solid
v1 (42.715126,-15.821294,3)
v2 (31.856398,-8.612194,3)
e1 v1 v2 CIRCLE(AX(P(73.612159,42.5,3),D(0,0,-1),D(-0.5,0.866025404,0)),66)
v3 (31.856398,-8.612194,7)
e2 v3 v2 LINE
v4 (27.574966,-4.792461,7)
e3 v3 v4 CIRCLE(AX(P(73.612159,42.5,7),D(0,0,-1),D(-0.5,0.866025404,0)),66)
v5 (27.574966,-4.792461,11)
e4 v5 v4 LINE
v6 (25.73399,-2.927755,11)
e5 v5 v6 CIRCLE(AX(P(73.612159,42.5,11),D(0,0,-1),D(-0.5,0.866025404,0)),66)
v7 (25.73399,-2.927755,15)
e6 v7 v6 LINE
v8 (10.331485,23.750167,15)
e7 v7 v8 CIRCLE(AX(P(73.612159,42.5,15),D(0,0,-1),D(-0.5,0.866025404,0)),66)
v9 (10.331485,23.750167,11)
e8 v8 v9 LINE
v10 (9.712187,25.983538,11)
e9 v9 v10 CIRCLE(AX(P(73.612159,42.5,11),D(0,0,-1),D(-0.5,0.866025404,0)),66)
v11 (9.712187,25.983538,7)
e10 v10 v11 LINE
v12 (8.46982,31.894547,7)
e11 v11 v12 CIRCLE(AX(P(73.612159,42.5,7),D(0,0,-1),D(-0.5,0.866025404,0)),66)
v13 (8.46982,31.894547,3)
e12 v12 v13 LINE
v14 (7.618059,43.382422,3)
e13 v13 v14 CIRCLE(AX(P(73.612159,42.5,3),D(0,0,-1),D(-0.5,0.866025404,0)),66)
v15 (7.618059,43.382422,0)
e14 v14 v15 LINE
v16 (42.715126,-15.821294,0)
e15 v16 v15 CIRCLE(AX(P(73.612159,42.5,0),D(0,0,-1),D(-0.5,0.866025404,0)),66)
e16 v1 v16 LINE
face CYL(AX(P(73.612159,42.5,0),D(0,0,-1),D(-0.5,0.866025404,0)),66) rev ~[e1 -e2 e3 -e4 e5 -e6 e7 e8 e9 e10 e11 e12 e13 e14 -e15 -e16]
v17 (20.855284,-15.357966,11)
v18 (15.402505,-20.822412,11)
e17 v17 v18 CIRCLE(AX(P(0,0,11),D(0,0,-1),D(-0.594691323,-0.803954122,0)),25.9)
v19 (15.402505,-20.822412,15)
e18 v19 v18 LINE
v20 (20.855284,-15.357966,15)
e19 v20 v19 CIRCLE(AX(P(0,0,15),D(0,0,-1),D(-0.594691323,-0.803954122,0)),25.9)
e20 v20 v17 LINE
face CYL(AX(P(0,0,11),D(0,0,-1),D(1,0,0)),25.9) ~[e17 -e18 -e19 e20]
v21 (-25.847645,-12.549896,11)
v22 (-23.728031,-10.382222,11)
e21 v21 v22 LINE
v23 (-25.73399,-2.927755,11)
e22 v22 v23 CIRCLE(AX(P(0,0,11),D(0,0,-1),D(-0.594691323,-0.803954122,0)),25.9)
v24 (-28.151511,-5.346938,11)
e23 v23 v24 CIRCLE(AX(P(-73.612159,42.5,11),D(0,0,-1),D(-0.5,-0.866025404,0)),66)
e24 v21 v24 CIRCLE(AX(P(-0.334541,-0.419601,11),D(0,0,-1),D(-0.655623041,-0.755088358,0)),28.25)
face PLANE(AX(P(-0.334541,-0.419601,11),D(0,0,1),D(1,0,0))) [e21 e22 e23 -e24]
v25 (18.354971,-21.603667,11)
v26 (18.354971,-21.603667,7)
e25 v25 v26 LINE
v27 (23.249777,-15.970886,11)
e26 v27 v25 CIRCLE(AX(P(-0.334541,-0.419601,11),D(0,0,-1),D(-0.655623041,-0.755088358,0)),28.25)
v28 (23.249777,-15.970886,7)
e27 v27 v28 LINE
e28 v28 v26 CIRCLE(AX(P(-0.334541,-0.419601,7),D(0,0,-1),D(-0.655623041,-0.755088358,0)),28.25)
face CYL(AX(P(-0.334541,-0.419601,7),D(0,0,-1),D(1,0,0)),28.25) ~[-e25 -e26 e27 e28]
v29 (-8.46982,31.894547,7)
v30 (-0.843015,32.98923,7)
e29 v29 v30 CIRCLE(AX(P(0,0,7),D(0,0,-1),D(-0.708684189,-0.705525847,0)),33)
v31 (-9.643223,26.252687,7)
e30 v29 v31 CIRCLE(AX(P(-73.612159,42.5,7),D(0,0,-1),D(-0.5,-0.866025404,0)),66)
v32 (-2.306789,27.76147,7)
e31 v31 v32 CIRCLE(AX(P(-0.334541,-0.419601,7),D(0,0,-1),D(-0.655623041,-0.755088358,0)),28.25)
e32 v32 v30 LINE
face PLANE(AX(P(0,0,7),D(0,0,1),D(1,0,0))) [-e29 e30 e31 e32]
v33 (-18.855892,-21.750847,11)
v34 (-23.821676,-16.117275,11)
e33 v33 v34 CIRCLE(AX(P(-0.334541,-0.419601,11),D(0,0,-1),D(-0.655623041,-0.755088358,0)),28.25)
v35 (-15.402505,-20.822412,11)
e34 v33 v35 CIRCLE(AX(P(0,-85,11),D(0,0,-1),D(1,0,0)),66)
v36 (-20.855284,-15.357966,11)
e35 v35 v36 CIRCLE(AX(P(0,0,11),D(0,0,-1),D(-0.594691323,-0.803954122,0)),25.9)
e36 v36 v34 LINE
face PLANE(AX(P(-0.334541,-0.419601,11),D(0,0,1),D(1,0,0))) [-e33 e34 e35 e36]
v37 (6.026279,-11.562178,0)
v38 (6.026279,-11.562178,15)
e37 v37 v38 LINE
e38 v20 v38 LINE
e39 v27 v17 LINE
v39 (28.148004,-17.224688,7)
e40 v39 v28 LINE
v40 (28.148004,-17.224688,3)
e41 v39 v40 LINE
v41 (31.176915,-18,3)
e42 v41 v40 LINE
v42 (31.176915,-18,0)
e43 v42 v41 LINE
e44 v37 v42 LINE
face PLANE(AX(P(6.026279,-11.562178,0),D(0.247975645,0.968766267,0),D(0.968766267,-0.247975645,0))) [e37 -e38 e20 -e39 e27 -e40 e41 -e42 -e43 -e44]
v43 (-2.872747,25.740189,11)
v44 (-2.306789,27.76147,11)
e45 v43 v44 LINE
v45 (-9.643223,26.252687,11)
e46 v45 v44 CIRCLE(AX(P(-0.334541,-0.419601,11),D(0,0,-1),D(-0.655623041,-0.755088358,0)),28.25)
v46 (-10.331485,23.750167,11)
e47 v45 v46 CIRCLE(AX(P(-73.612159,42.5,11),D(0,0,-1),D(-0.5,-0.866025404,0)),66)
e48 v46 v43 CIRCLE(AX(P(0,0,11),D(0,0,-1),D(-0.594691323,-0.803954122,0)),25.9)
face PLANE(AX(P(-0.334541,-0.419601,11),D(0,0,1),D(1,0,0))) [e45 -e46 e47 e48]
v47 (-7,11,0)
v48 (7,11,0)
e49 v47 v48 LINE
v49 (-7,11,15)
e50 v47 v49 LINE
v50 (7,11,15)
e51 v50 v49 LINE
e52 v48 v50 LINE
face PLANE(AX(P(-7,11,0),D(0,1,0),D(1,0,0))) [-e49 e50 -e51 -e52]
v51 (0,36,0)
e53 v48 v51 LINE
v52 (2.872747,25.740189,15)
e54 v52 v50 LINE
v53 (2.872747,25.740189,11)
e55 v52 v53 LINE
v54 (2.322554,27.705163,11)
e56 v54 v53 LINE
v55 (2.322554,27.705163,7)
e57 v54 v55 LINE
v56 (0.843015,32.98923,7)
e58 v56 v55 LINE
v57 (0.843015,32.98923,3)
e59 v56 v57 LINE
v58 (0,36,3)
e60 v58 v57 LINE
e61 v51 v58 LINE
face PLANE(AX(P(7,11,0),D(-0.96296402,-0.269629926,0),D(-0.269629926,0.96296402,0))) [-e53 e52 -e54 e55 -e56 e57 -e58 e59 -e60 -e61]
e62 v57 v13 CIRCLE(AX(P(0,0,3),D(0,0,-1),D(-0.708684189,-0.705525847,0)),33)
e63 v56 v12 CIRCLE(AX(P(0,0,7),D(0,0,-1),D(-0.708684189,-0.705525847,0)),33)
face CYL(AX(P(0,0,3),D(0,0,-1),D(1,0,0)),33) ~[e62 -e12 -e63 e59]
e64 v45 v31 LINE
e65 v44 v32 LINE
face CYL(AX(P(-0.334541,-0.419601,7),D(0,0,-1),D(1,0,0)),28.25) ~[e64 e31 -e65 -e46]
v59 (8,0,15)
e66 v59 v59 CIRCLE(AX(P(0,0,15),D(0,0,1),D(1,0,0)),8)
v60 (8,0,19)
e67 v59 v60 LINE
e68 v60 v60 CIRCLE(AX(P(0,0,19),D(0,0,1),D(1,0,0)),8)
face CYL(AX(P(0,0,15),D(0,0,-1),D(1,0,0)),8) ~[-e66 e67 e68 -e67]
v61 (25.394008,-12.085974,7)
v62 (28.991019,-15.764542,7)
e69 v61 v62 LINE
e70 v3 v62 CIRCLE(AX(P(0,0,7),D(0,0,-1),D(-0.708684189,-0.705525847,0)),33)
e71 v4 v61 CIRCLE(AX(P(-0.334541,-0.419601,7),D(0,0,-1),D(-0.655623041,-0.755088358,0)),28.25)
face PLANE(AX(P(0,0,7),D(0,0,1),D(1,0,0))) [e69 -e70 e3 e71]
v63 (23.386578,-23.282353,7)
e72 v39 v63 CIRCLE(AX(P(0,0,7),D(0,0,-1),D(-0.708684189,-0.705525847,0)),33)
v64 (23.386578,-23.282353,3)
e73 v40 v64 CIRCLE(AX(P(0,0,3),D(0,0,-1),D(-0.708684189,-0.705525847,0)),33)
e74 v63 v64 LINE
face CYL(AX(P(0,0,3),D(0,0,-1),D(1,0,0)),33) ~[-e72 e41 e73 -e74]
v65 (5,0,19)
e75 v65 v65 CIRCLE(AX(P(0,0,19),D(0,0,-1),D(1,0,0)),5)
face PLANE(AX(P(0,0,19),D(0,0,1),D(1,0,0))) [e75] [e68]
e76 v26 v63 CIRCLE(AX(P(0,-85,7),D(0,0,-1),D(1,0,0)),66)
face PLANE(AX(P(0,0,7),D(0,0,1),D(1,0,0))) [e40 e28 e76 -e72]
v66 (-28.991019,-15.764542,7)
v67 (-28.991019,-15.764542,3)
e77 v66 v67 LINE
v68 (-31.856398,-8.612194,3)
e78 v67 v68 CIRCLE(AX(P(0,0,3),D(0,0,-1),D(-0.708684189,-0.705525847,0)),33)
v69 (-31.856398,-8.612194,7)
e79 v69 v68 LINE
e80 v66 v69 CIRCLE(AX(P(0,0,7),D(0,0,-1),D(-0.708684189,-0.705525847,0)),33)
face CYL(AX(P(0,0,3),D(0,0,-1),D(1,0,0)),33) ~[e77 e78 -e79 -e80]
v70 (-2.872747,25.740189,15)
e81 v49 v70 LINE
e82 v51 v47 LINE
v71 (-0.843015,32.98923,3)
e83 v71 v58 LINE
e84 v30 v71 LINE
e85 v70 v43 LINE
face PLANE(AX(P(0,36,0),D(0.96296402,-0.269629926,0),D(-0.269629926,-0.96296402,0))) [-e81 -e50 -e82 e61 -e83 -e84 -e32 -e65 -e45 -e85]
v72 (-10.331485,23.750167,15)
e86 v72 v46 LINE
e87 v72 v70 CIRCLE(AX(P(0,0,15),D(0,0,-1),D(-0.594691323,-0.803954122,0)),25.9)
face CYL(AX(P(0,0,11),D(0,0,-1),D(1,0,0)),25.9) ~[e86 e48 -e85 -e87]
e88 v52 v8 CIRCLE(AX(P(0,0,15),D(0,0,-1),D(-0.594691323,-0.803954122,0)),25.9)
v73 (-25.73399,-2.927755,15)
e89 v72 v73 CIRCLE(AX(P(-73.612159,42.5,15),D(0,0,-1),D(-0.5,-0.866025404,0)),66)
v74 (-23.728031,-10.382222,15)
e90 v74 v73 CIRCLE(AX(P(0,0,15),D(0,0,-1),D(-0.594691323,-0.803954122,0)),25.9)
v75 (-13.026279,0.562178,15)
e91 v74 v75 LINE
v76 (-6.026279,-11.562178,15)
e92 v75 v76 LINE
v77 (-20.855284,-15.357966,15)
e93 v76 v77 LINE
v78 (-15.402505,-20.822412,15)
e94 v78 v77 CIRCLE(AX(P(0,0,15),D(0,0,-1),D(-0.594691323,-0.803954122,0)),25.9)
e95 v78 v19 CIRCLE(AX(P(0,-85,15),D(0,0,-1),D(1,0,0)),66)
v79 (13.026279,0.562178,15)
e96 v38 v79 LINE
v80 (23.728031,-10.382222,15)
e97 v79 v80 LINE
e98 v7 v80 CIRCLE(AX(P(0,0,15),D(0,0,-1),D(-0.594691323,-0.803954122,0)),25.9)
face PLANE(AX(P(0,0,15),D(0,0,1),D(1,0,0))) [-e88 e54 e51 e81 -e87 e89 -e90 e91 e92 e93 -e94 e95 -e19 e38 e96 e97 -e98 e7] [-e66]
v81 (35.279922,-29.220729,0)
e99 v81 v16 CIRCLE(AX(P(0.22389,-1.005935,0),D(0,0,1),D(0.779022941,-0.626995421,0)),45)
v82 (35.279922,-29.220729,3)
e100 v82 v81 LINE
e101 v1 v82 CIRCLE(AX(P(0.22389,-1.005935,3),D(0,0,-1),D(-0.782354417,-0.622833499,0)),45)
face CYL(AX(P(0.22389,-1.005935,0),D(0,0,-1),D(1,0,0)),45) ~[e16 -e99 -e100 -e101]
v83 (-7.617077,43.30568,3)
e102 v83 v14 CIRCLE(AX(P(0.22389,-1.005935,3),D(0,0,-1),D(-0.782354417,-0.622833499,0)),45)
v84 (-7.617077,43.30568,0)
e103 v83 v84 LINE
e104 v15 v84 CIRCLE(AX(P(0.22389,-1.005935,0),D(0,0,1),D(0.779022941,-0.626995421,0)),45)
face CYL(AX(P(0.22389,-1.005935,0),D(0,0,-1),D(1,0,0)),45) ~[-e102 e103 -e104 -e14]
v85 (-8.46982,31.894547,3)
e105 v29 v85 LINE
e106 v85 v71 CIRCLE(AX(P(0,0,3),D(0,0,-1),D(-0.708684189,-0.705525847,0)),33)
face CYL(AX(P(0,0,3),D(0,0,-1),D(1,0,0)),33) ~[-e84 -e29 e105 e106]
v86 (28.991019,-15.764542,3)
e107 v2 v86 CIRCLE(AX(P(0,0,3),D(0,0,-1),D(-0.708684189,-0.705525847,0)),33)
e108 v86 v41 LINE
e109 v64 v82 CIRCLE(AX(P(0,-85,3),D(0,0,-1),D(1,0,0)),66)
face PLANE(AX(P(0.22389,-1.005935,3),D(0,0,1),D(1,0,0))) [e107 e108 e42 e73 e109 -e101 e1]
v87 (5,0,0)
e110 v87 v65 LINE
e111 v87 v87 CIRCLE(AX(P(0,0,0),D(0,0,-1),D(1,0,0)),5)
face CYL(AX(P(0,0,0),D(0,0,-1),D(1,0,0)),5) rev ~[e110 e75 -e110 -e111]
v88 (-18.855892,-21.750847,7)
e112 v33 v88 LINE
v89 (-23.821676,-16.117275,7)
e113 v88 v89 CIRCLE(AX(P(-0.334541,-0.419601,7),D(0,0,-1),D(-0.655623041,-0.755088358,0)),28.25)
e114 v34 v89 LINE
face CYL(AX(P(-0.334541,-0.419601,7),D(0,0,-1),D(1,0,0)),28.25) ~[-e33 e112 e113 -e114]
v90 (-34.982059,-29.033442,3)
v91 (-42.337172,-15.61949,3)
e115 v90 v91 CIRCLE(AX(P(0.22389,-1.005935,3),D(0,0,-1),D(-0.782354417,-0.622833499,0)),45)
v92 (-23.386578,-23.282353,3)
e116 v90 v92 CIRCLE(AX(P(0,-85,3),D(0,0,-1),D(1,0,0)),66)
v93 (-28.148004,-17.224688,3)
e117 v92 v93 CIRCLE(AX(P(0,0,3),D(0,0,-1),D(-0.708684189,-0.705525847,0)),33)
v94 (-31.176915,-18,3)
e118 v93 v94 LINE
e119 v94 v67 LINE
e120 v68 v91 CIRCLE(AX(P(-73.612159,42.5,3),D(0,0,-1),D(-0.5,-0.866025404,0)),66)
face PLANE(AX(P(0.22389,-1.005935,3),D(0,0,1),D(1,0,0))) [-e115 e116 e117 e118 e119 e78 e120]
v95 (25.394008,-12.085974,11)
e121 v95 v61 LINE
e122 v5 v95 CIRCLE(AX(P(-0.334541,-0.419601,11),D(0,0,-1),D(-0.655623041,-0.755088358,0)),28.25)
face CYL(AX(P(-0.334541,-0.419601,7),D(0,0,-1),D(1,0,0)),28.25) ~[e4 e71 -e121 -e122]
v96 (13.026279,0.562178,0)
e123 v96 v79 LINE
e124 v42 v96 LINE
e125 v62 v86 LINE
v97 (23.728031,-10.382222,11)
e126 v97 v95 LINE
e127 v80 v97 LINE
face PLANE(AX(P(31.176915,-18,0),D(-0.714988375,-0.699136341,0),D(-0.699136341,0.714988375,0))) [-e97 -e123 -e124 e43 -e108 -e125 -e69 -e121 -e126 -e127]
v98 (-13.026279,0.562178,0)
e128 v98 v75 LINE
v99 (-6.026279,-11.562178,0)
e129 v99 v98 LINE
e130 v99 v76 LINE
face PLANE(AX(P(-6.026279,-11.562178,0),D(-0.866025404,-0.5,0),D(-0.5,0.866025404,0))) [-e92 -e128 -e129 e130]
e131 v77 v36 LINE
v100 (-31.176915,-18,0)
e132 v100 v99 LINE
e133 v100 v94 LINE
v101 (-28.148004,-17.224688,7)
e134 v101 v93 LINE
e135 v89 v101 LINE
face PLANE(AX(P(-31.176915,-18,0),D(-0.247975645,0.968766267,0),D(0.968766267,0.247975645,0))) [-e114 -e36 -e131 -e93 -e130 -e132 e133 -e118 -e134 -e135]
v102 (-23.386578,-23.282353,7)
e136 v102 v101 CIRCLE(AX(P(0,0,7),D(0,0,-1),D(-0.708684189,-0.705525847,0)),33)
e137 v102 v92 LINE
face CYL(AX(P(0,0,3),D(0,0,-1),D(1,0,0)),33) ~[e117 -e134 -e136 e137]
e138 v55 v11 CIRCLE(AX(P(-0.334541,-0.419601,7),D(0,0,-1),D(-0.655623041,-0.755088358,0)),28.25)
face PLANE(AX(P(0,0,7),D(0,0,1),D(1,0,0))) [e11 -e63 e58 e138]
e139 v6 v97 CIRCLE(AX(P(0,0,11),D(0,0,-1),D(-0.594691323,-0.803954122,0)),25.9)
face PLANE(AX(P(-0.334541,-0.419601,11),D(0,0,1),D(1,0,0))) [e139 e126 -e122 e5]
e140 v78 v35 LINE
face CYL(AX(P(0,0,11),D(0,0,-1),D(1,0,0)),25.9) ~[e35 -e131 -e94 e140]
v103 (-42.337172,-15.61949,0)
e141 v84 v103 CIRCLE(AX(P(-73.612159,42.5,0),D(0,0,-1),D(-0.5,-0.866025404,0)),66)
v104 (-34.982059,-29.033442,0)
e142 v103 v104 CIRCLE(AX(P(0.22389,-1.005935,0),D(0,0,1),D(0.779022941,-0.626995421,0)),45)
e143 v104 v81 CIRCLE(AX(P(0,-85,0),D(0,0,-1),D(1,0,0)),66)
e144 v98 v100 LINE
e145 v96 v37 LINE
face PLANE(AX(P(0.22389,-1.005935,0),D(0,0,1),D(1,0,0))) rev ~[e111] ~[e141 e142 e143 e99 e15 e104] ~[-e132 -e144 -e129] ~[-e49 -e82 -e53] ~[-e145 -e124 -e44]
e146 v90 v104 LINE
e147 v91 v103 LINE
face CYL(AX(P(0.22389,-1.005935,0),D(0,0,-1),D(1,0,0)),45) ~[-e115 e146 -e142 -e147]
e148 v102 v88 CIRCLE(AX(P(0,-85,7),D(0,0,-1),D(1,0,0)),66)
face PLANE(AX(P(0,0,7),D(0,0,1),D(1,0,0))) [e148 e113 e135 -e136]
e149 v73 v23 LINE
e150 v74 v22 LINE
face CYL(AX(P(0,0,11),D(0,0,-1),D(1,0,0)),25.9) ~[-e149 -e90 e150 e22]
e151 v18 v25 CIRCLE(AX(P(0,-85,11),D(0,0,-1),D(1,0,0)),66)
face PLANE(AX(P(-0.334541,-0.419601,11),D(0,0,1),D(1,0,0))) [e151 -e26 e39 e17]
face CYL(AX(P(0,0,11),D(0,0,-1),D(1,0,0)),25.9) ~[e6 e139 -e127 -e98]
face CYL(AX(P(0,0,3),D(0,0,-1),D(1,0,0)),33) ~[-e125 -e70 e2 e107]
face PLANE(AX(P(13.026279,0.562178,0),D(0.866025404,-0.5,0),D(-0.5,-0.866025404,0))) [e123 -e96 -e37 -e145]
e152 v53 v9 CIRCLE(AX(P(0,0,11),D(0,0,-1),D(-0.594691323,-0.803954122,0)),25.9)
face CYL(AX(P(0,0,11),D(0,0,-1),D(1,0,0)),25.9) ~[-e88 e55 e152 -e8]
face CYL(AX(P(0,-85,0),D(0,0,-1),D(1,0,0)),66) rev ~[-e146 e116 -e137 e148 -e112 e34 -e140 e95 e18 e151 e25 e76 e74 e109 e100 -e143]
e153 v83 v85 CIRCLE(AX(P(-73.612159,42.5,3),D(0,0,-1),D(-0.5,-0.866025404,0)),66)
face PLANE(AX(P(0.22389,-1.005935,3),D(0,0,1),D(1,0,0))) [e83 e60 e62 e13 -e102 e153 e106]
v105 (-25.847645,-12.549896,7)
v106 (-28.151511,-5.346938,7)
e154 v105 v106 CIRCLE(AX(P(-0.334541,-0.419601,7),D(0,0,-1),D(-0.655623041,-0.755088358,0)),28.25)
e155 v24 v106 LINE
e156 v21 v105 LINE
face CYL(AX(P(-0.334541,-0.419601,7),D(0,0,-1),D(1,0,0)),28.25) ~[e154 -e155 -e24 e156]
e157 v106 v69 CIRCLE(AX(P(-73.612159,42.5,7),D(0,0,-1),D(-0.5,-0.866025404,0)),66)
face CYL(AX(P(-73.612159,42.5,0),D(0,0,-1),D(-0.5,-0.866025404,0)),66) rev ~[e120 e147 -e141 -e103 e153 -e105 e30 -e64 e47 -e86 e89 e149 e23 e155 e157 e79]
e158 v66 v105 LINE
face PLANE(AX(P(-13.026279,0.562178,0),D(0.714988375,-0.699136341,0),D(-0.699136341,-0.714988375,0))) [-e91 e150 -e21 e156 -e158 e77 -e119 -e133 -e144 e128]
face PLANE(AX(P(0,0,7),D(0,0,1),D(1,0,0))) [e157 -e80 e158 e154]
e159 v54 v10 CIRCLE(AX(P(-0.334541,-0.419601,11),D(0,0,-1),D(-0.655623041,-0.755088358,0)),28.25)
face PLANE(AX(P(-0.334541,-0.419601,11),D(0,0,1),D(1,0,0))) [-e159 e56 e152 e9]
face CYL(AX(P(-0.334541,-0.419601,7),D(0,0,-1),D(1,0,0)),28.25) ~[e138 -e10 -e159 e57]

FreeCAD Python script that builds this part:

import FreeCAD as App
import Part
import Sketcher
from FreeCAD import Vector
Q = App.Units.Quantity

doc = App.newDocument("Part")
params = doc.addObject("Spreadsheet::Sheet", "Params")
for row, (alias, value) in enumerate([
    ("sketch1_diameter", "90 mm"),
    ("pad1_length", "3 mm"),
    ("sketch2_diameter", "66 mm"),
    ("pad2_length", "4 mm"),
    ("sketch3_diameter", "56.5 mm"),
    ("pad3_length", "4 mm"),
    ("sketch4_diameter", "51.8 mm"),
    ("pad4_length", "4 mm"),
    ("sketch5_diameter", "16 mm"),
    ("pad5_length", "4 mm"),
    ("sketch6_diameter", "10 mm"),
    ("sketch7_diameter", "132 mm"),
    ("sketch8_width", "14 mm"),
], start=1):
    params.set(f"A{row}", alias)
    params.set(f"B{row}", "=" + value)
    params.setAlias(f"B{row}", alias)

body = doc.addObject("PartDesign::Body", "Body")

# Sketch on XY plane
sketch1 = body.newObject("Sketcher::SketchObject", "Sketch")
sketch1.AttachmentSupport = (doc.getObject("XY_Plane"), [""])
sketch1.MapMode = "FlatFace"
sketch1.addGeometry(Part.Circle(Vector(0, -1, 0), Vector(0, 0, 1), 45), False)
sketch1.addConstraint([
    Sketcher.Constraint("Diameter", 0, Q("90 mm")),
    Sketcher.Constraint("DistanceX", -1, 1, 0, 3, Q("0.22389 mm")),
    Sketcher.Constraint("DistanceY", 0, 3, -1, 1, Q("1.005935 mm")),
])
sketch1.setExpression("Constraints[0]", "Params.sketch1_diameter")
pad1 = body.newObject("PartDesign::Pad", "Pad")
pad1.Profile = sketch1
pad1.setExpression("Length", "Params.pad1_length")

# Sketch on XY plane
sketch2 = body.newObject("Sketcher::SketchObject", "Sketch001")
sketch2.AttachmentSupport = (doc.getObject("XY_Plane"), [""])
sketch2.MapMode = "FlatFace"
sketch2.AttachmentOffset = App.Placement(Vector(0, 0, 3), App.Rotation())
sketch2.addGeometry(Part.Circle(Vector(0, 0, 0), Vector(0, 0, 1), 33), False)
sketch2.addConstraint([
    Sketcher.Constraint("Coincident", 0, 3, -1, 1),
    Sketcher.Constraint("Diameter", 0, Q("66 mm")),
])
sketch2.setExpression("Constraints[1]", "Params.sketch2_diameter")
pad2 = body.newObject("PartDesign::Pad", "Pad001")
pad2.Profile = sketch2
pad2.setExpression("Length", "Params.pad2_length")

# Sketch on XY plane
sketch3 = body.newObject("Sketcher::SketchObject", "Sketch002")
sketch3.AttachmentSupport = (doc.getObject("XY_Plane"), [""])
sketch3.MapMode = "FlatFace"
sketch3.AttachmentOffset = App.Placement(Vector(0, 0, 7), App.Rotation())
sketch3.addGeometry(Part.Circle(Vector(0, 0, 0), Vector(0, 0, 1), 28), False)
sketch3.addConstraint([
    Sketcher.Constraint("Diameter", 0, Q("56.5 mm")),
    Sketcher.Constraint("DistanceY", 0, 3, -1, 1, Q("0.419601 mm")),
    Sketcher.Constraint("DistanceX", 0, 3, -1, 1, Q("0.334541 mm")),
])
sketch3.setExpression("Constraints[0]", "Params.sketch3_diameter")
pad3 = body.newObject("PartDesign::Pad", "Pad002")
pad3.Profile = sketch3
pad3.setExpression("Length", "Params.pad3_length")

# Sketch on XY plane
sketch4 = body.newObject("Sketcher::SketchObject", "Sketch003")
sketch4.AttachmentSupport = (doc.getObject("XY_Plane"), [""])
sketch4.MapMode = "FlatFace"
sketch4.AttachmentOffset = App.Placement(Vector(0, 0, 11), App.Rotation())
sketch4.addGeometry(Part.Circle(Vector(0, 0, 0), Vector(0, 0, 1), 26), False)
sketch4.addConstraint([
    Sketcher.Constraint("Coincident", 0, 3, -1, 1),
    Sketcher.Constraint("Diameter", 0, Q("51.8 mm")),
])
sketch4.setExpression("Constraints[1]", "Params.sketch4_diameter")
pad4 = body.newObject("PartDesign::Pad", "Pad003")
pad4.Profile = sketch4
pad4.setExpression("Length", "Params.pad4_length")

# Sketch on XY plane
sketch5 = body.newObject("Sketcher::SketchObject", "Sketch004")
sketch5.AttachmentSupport = (doc.getObject("XY_Plane"), [""])
sketch5.MapMode = "FlatFace"
sketch5.AttachmentOffset = App.Placement(Vector(0, 0, 15), App.Rotation())
sketch5.addGeometry(Part.Circle(Vector(0, 0, 0), Vector(0, 0, 1), 8), False)
sketch5.addConstraint([
    Sketcher.Constraint("Coincident", 0, 3, -1, 1),
    Sketcher.Constraint("Diameter", 0, Q("16 mm")),
])
sketch5.setExpression("Constraints[1]", "Params.sketch5_diameter")
pad5 = body.newObject("PartDesign::Pad", "Pad004")
pad5.Profile = sketch5
pad5.setExpression("Length", "Params.pad5_length")

# Sketch on XY plane
sketch6 = body.newObject("Sketcher::SketchObject", "Sketch005")
sketch6.AttachmentSupport = (doc.getObject("XY_Plane"), [""])
sketch6.MapMode = "FlatFace"
sketch6.addGeometry(Part.Circle(Vector(0, 0, 0), Vector(0, 0, 1), 5), False)
sketch6.addConstraint([
    Sketcher.Constraint("Coincident", 0, 3, -1, 1),
    Sketcher.Constraint("Diameter", 0, Q("10 mm")),
])
sketch6.setExpression("Constraints[1]", "Params.sketch6_diameter")
pocket1 = body.newObject("PartDesign::Pocket", "Pocket")
pocket1.Profile = sketch6
pocket1.Type = "ThroughAll"
pocket1.Reversed = True

# Sketch on XY plane
sketch7 = body.newObject("Sketcher::SketchObject", "Sketch006")
sketch7.AttachmentSupport = (doc.getObject("XY_Plane"), [""])
sketch7.MapMode = "FlatFace"
sketch7.addGeometry(Part.Circle(Vector(0, -85, 0), Vector(0, 0, 1), 66), False)
sketch7.addConstraint([
    Sketcher.Constraint("PointOnObject", 0, 3, -2),
    Sketcher.Constraint("Diameter", 0, Q("132 mm")),
    Sketcher.Constraint("DistanceY", 0, 3, -1, 1, Q("85 mm")),
])
sketch7.setExpression("Constraints[1]", "Params.sketch7_diameter")
pocket2 = body.newObject("PartDesign::Pocket", "Pocket001")
pocket2.Profile = sketch7
pocket2.Type = "ThroughAll"
pocket2.Reversed = True
doc.recompute()

polarpattern = body.newObject("PartDesign::PolarPattern", "PolarPattern")
polarpattern.Originals = [pocket2]
polarpattern.Axis = (doc.getObject("Z_Axis"), [""])
polarpattern.Angle = 360
polarpattern.Occurrences = 3
body.Tip = polarpattern

# Sketch on XY plane
sketch8 = body.newObject("Sketcher::SketchObject", "Sketch007")
sketch8.AttachmentSupport = (doc.getObject("XY_Plane"), [""])
sketch8.MapMode = "FlatFace"
sketch8.addGeometry([
    Part.LineSegment(Vector(7, 11, 0), Vector(-7, 11, 0)),
    Part.LineSegment(Vector(-7, 11, 0), Vector(0, 36, 0)),
    Part.LineSegment(Vector(0, 36, 0), Vector(7, 11, 0)),
], False)
sketch8.addConstraint([
    Sketcher.Constraint("Coincident", 0, 2, 1, 1),
    Sketcher.Constraint("Coincident", 1, 2, 2, 1),
    Sketcher.Constraint("Coincident", 2, 2, 0, 1),
    Sketcher.Constraint("Horizontal", 0),
    Sketcher.Constraint("PointOnObject", 1, 2, -2),
    Sketcher.Constraint("Equal", 1, 2),
    Sketcher.Constraint("DistanceX", 0, 2, 0, 1, Q("14 mm")),
    Sketcher.Constraint("DistanceY", -1, 1, 0, 2, Q("11 mm")),
    Sketcher.Constraint("DistanceY", -1, 1, 1, 2, Q("36 mm")),
])
sketch8.setExpression("Constraints[6]", "Params.sketch8_width")
pocket3 = body.newObject("PartDesign::Pocket", "Pocket002")
pocket3.Profile = sketch8
pocket3.Type = "ThroughAll"
pocket3.Reversed = True
doc.recompute()

polarpattern2 = body.newObject("PartDesign::PolarPattern", "PolarPattern001")
polarpattern2.Originals = [pocket3]
polarpattern2.Axis = (doc.getObject("Z_Axis"), [""])
polarpattern2.Angle = 360
polarpattern2.Occurrences = 3
body.Tip = polarpattern2

doc.recompute()
